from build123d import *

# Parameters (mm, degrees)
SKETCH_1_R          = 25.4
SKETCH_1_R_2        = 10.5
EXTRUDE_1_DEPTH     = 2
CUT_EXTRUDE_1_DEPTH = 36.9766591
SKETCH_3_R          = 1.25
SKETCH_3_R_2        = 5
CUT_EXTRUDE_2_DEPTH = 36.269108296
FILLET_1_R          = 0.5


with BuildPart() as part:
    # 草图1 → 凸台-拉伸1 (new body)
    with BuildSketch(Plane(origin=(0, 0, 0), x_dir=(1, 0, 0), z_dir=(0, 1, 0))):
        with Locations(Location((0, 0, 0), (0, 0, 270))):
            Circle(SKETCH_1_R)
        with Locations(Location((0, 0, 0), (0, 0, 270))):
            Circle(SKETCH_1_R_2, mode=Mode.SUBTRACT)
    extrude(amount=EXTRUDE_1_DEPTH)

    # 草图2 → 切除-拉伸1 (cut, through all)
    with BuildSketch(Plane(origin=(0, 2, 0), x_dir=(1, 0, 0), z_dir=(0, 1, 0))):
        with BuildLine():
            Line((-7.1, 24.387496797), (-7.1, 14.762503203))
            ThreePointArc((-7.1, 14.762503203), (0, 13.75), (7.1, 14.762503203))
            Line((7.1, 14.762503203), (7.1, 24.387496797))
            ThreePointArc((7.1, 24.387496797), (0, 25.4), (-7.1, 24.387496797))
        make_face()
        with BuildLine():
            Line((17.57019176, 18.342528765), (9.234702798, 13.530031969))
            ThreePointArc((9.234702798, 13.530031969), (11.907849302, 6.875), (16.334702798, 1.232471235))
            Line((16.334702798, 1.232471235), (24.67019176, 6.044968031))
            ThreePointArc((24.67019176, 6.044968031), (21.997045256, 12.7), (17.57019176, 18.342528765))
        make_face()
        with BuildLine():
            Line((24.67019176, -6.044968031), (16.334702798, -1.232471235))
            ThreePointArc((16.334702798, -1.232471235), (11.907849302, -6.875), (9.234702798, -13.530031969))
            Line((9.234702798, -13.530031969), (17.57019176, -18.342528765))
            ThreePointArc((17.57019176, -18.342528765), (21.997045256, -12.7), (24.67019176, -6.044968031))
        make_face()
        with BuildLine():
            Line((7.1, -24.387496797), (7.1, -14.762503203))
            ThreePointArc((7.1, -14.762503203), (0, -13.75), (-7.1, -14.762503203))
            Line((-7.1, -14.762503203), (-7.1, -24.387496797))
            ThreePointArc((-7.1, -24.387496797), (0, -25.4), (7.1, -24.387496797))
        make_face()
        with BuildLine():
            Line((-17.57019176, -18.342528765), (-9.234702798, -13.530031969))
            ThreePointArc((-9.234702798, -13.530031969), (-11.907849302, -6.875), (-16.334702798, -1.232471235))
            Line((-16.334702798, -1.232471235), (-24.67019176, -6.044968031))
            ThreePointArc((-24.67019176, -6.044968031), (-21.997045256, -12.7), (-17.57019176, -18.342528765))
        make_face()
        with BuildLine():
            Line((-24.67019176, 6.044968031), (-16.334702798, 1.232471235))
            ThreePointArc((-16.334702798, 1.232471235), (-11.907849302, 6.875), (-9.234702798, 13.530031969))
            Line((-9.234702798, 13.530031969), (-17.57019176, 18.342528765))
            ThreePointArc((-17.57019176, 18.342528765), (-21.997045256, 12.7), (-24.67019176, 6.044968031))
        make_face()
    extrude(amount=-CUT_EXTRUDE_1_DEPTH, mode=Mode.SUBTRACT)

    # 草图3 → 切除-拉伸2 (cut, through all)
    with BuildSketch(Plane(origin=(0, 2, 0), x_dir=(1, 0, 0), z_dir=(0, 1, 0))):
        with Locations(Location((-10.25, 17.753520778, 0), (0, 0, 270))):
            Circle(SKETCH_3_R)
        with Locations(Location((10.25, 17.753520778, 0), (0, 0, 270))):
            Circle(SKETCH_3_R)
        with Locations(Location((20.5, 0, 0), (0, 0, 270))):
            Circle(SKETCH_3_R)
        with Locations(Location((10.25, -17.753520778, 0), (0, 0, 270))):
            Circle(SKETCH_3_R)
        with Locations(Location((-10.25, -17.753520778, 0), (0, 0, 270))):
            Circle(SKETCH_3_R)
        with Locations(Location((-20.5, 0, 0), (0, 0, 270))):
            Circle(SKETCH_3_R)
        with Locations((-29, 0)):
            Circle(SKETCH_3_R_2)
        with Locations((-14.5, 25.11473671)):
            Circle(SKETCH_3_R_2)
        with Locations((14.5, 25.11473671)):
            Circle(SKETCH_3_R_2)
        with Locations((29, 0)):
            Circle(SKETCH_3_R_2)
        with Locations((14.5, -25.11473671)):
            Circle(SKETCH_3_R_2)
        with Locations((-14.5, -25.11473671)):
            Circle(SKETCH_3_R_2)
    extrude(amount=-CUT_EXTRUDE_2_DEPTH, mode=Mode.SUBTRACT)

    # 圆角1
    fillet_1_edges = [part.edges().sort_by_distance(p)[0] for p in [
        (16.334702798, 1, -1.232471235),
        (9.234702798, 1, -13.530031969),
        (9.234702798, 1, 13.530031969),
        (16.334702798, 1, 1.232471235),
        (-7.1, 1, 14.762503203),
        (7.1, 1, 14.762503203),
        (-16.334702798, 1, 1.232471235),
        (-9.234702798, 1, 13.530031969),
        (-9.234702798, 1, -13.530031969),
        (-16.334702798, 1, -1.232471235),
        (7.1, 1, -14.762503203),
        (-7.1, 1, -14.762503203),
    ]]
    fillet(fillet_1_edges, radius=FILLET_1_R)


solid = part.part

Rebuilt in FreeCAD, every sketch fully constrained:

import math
import FreeCAD as App
import Part
import Sketcher
Q = App.Units.Quantity


def edges_at(feature, points):
    """Names of the edges that pass closest to the given points."""
    edges = feature.Shape.Edges
    near = lambda p: min(range(len(edges)), key=lambda i: edges[i].distToShape(Part.Vertex(*p))[0])
    return sorted({f"Edge{near(p) + 1}" for p in points})

doc = App.newDocument("Part")
body = doc.addObject("PartDesign::Body", "Body")

# Sketch on XZ plane
sketch1 = doc.addObject("Sketcher::SketchObject", "Sketch")
body.addObject(sketch1)
sketch1.AttachmentSupport = (doc.XZ_Plane, [""])
sketch1.MapMode = "FlatFace"
sketch1.addGeometry([
    Part.Circle(App.Vector(0, 0, 0), App.Vector(0, 0, 1), 25.4),
    Part.Circle(App.Vector(0, 0, 0), App.Vector(0, 0, 1), 10.5),
], False)
sketch1.addConstraint([
    Sketcher.Constraint("Coincident", 0, 3, -1, 1),
    Sketcher.Constraint("Coincident", 1, 3, -1, 1),
    Sketcher.Constraint("Diameter", 1, Q("21 mm")),
    Sketcher.Constraint("Diameter", 0, Q("50.8 mm")),
])
pad1 = doc.addObject("PartDesign::Pad", "Pad")
body.addObject(pad1)
pad1.Profile = sketch1
pad1.Length = 2
pad1.Reversed = True

# Sketch on XZ plane
sketch2 = doc.addObject("Sketcher::SketchObject", "Sketch001")
body.addObject(sketch2)
sketch2.AttachmentSupport = (doc.XZ_Plane, [""])
sketch2.MapMode = "FlatFace"
sketch2.AttachmentOffset = App.Placement(App.Vector(0, 0, -2), App.Rotation())
sketch2.addGeometry([
    Part.LineSegment(App.Vector(-7.1, -24.387497, 0), App.Vector(-7.1, -14.762503, 0)),  # 0
    Part.ArcOfCircle(Part.Circle(App.Vector(0, -39.15, 0), App.Vector(0, 0, 1), 25.4), math.radians(73.76799), math.radians(106.23201)),  # 1
    Part.LineSegment(App.Vector(7.1, -14.762503, 0), App.Vector(7.1, -24.387497, 0)),  # 2
    Part.ArcOfCircle(Part.Circle(App.Vector(0, 0, 0), App.Vector(0, 0, 1), 25.4), math.radians(-106.23201), math.radians(-73.76799)),  # 3
    Part.LineSegment(App.Vector(17.570192, -18.342529, 0), App.Vector(9.234703, -13.530032, 0)),  # 4
    Part.ArcOfCircle(Part.Circle(App.Vector(33.904895, -19.575, 0), App.Vector(0, 0, 1), 25.4), math.radians(133.76799), math.radians(166.23201)),  # 5
    Part.LineSegment(App.Vector(16.334703, -1.232471, 0), App.Vector(24.670192, -6.044968, 0)),  # 6
    Part.ArcOfCircle(Part.Circle(App.Vector(0, 0, 0), App.Vector(0, 0, 1), 25.4), math.radians(-46.23201), math.radians(-13.76799)),  # 7
    Part.LineSegment(App.Vector(24.670192, 6.044968, 0), App.Vector(16.334703, 1.232471, 0)),  # 8
    Part.ArcOfCircle(Part.Circle(App.Vector(33.904895, 19.575, 0), App.Vector(0, 0, 1), 25.4), math.radians(-166.23201), math.radians(-133.76799)),  # 9
    Part.LineSegment(App.Vector(9.234703, 13.530032, 0), App.Vector(17.570192, 18.342529, 0)),  # 10
    Part.ArcOfCircle(Part.Circle(App.Vector(0, 0, 0), App.Vector(0, 0, 1), 25.4), math.radians(13.76799), math.radians(46.23201)),  # 11
    Part.LineSegment(App.Vector(7.1, 24.387497, 0), App.Vector(7.1, 14.762503, 0)),  # 12
    Part.ArcOfCircle(Part.Circle(App.Vector(0, 39.15, 0), App.Vector(0, 0, 1), 25.4), math.radians(-106.23201), math.radians(-73.76799)),  # 13
    Part.LineSegment(App.Vector(-7.1, 14.762503, 0), App.Vector(-7.1, 24.387497, 0)),  # 14
    Part.ArcOfCircle(Part.Circle(App.Vector(0, 0, 0), App.Vector(0, 0, 1), 25.4), math.radians(73.76799), math.radians(106.23201)),  # 15
    Part.LineSegment(App.Vector(-17.570192, 18.342529, 0), App.Vector(-9.234703, 13.530032, 0)),  # 16
    Part.ArcOfCircle(Part.Circle(App.Vector(-33.904895, 19.575, 0), App.Vector(0, 0, 1), 25.4), math.radians(-46.23201), math.radians(-13.76799)),  # 17
    Part.LineSegment(App.Vector(-16.334703, 1.232471, 0), App.Vector(-24.670192, 6.044968, 0)),  # 18
    Part.ArcOfCircle(Part.Circle(App.Vector(0, 0, 0), App.Vector(0, 0, 1), 25.4), math.radians(133.76799), math.radians(166.23201)),  # 19
    Part.LineSegment(App.Vector(-24.670192, -6.044968, 0), App.Vector(-16.334703, -1.232471, 0)),  # 20
    Part.ArcOfCircle(Part.Circle(App.Vector(-33.904895, -19.575, 0), App.Vector(0, 0, 1), 25.4), math.radians(13.76799), math.radians(46.23201)),  # 21
    Part.LineSegment(App.Vector(-9.234703, -13.530032, 0), App.Vector(-17.570192, -18.342529, 0)),  # 22
    Part.ArcOfCircle(Part.Circle(App.Vector(0, 0, 0), App.Vector(0, 0, 1), 25.4), math.radians(-166.23201), math.radians(-133.76799)),  # 23
], False)
sketch2.addConstraint([
    Sketcher.Constraint("Coincident", 0, 2, 1, 2),
    Sketcher.Constraint("Coincident", 1, 1, 2, 1),
    Sketcher.Constraint("Coincident", 2, 2, 3, 2),
    Sketcher.Constraint("Coincident", 3, 1, 0, 1),
    Sketcher.Constraint("Coincident", 4, 2, 5, 2),
    Sketcher.Constraint("Coincident", 5, 1, 6, 1),
    Sketcher.Constraint("Coincident", 6, 2, 7, 2),
    Sketcher.Constraint("Coincident", 7, 1, 4, 1),
    Sketcher.Constraint("Coincident", 8, 2, 9, 2),
    Sketcher.Constraint("Coincident", 9, 1, 10, 1),
    Sketcher.Constraint("Coincident", 10, 2, 11, 2),
    Sketcher.Constraint("Coincident", 11, 1, 8, 1),
    Sketcher.Constraint("Coincident", 12, 2, 13, 2),
    Sketcher.Constraint("Coincident", 13, 1, 14, 1),
    Sketcher.Constraint("Coincident", 14, 2, 15, 2),
    Sketcher.Constraint("Coincident", 15, 1, 12, 1),
    Sketcher.Constraint("Coincident", 16, 2, 17, 2),
    Sketcher.Constraint("Coincident", 17, 1, 18, 1),
    Sketcher.Constraint("Coincident", 18, 2, 19, 2),
    Sketcher.Constraint("Coincident", 19, 1, 16, 1),
    Sketcher.Constraint("Coincident", 20, 2, 21, 2),
    Sketcher.Constraint("Coincident", 21, 1, 22, 1),
    Sketcher.Constraint("Coincident", 22, 2, 23, 2),
    Sketcher.Constraint("Coincident", 23, 1, 20, 1),
    Sketcher.Constraint("Vertical", 0),
    Sketcher.Constraint("Vertical", 2),
    Sketcher.Constraint("Vertical", 12),
    Sketcher.Constraint("Vertical", 14),
    Sketcher.Constraint("Coincident", 3, 3, -1, 1),
    Sketcher.Constraint("Coincident", 7, 3, -1, 1),
    Sketcher.Constraint("Coincident", 11, 3, -1, 1),
    Sketcher.Constraint("Coincident", 15, 3, -1, 1),
    Sketcher.Constraint("Coincident", 19, 3, -1, 1),
    Sketcher.Constraint("Coincident", 23, 3, -1, 1),
    Sketcher.Constraint("Equal", 1, 3),
    Sketcher.Constraint("Equal", 3, 5),
    Sketcher.Constraint("Equal", 5, 7),
    Sketcher.Constraint("Equal", 7, 9),
    Sketcher.Constraint("Equal", 9, 11),
    Sketcher.Constraint("Equal", 11, 13),
    Sketcher.Constraint("Equal", 13, 15),
    Sketcher.Constraint("Equal", 15, 17),
    Sketcher.Constraint("Equal", 17, 19),
    Sketcher.Constraint("Equal", 19, 21),
    Sketcher.Constraint("Equal", 21, 23),
    Sketcher.Constraint("Symmetric", 1, 3, 13, 3, -1, 1),
    Sketcher.Constraint("Symmetric", 5, 3, 17, 3, -1, 1),
    Sketcher.Constraint("Symmetric", 9, 3, 21, 3, -1, 1),
    Sketcher.Constraint("Symmetric", 9, 3, 17, 3, -2),
    Sketcher.Constraint("Symmetric", 0, 2, 1, 1, -2),
    Sketcher.Constraint("Parallel", 4, 6),
    Sketcher.Constraint("Parallel", 8, 10),
    Sketcher.Constraint("Parallel", 6, 16),
    Sketcher.Constraint("Parallel", 16, 18),
    Sketcher.Constraint("Parallel", 10, 20),
    Sketcher.Constraint("Parallel", 20, 22),
    Sketcher.Constraint("Horizontal", 12, 2, 13, 1),
    Sketcher.Constraint("Horizontal", 9, 1, 16, 2),
    Sketcher.Constraint("Horizontal", 8, 2, 17, 1),
    Sketcher.Constraint("Horizontal", 11, 1, 18, 2),
    Sketcher.Constraint("Horizontal", 5, 1, 20, 2),
    Sketcher.Constraint("Horizontal", 4, 2, 21, 1),
    Sketcher.Constraint("Vertical", 5, 1, 8, 2),
    Sketcher.Constraint("Vertical", 4, 2, 9, 1),
    Sketcher.Constraint("Vertical", 2, 2, 12, 2),
    Sketcher.Constraint("Equal", 4, 6),
    Sketcher.Constraint("Radius", 1, Q("25.4 mm")),
    Sketcher.Constraint("Angle", 4, Q("150 deg")),
    Sketcher.Constraint("DistanceX", 0, 2, -1, 1, Q("7.1 mm")),
    Sketcher.Constraint("DistanceX", 4, 2, 5, 1, Q("7.1 mm")),
    Sketcher.Constraint("DistanceY", 1, 3, -1, 1, Q("39.15 mm")),
    Sketcher.Constraint("DistanceY", 5, 3, 9, 3, Q("39.15 mm")),
    Sketcher.Constraint("DistanceY", 4, 2, -1, 1, Q("13.530032 mm")),
])
pocket1 = doc.addObject("PartDesign::Pocket", "Pocket")
body.addObject(pocket1)
pocket1.Profile = sketch2
pocket1.Type = "ThroughAll"
pocket1.Reversed = True

# Sketch on XZ plane
sketch3 = doc.addObject("Sketcher::SketchObject", "Sketch002")
body.addObject(sketch3)
sketch3.AttachmentSupport = (doc.XZ_Plane, [""])
sketch3.MapMode = "FlatFace"
sketch3.AttachmentOffset = App.Placement(App.Vector(0, 0, -2), App.Rotation())
sketch3.addGeometry([
    Part.Circle(App.Vector(-10.25, -17.753521, 0), App.Vector(0, 0, 1), 1.25),  # 0
    Part.Circle(App.Vector(10.25, -17.753521, 0), App.Vector(0, 0, 1), 1.25),  # 1
    Part.Circle(App.Vector(20.5, 0, 0), App.Vector(0, 0, 1), 1.25),  # 2
    Part.Circle(App.Vector(10.25, 17.753521, 0), App.Vector(0, 0, 1), 1.25),  # 3
    Part.Circle(App.Vector(-10.25, 17.753521, 0), App.Vector(0, 0, 1), 1.25),  # 4
    Part.Circle(App.Vector(-20.5, 0, 0), App.Vector(0, 0, 1), 1.25),  # 5
    Part.Circle(App.Vector(-29, 0, 0), App.Vector(0, 0, 1), 5),  # 6
    Part.Circle(App.Vector(-14.5, -25.114737, 0), App.Vector(0, 0, 1), 5),  # 7
    Part.Circle(App.Vector(14.5, -25.114737, 0), App.Vector(0, 0, 1), 5),  # 8
    Part.Circle(App.Vector(29, 0, 0), App.Vector(0, 0, 1), 5),  # 9
    Part.Circle(App.Vector(14.5, 25.114737, 0), App.Vector(0, 0, 1), 5),  # 10
    Part.Circle(App.Vector(-14.5, 25.114737, 0), App.Vector(0, 0, 1), 5),  # 11
], False)
sketch3.addConstraint([
    Sketcher.Constraint("Equal", 0, 1),
    Sketcher.Constraint("Equal", 1, 2),
    Sketcher.Constraint("Equal", 2, 3),
    Sketcher.Constraint("Equal", 3, 4),
    Sketcher.Constraint("Equal", 4, 5),
    Sketcher.Constraint("Equal", 6, 7),
    Sketcher.Constraint("Equal", 7, 8),
    Sketcher.Constraint("Equal", 8, 9),
    Sketcher.Constraint("Equal", 9, 10),
    Sketcher.Constraint("Equal", 10, 11),
    Sketcher.Constraint("Symmetric", 0, 3, 3, 3, -1, 1),
    Sketcher.Constraint("Symmetric", 1, 3, 4, 3, -1, 1),
    Sketcher.Constraint("Symmetric", 2, 3, 5, 3, -1, 1),
    Sketcher.Constraint("Symmetric", 6, 3, 9, 3, -1, 1),
    Sketcher.Constraint("Symmetric", 7, 3, 10, 3, -1, 1),
    Sketcher.Constraint("Symmetric", 8, 3, 11, 3, -1, 1),
    Sketcher.Constraint("Symmetric", 0, 3, 1, 3, -2),
    Sketcher.Constraint("Symmetric", 7, 3, 8, 3, -2),
    Sketcher.Constraint("PointOnObject", 2, 3, -1),
    Sketcher.Constraint("PointOnObject", 6, 3, -1),
    Sketcher.Constraint("Diameter", 6, Q("10 mm")),
    Sketcher.Constraint("Diameter", 0, Q("2.5 mm")),
    Sketcher.Constraint("DistanceX", 6, 3, -1, 1, Q("29 mm")),
    Sketcher.Constraint("DistanceX", 5, 3, 2, 3, Q("41 mm")),
    Sketcher.Constraint("DistanceX", 5, 3, 7, 3, Q("6 mm")),
    Sketcher.Constraint("DistanceX", 0, 3, 1, 3, Q("20.5 mm")),
    Sketcher.Constraint("DistanceY", 0, 3, -1, 1, Q("17.753521 mm")),
    Sketcher.Constraint("DistanceY", 7, 3, -1, 1, Q("25.114737 mm")),
])
pocket2 = doc.addObject("PartDesign::Pocket", "Pocket001")
body.addObject(pocket2)
pocket2.Profile = sketch3
pocket2.Type = "ThroughAll"
pocket2.Reversed = True
doc.recompute()

fillet = doc.addObject("PartDesign::Fillet", "Fillet")
body.addObject(fillet)
fillet.Base = (pocket2, edges_at(pocket2, [
    (16.335, 1, -1.232),
    (9.235, 1, -13.53),
    (9.235, 1, 13.53),
    (16.335, 1, 1.232),
    (-7.1, 1, 14.763),
    (7.1, 1, 14.763),
    (-16.335, 1, 1.232),
    (-9.235, 1, 13.53),
    (-9.235, 1, -13.53),
    (-16.335, 1, -1.232),
    (7.1, 1, -14.763),
    (-7.1, 1, -14.763),
]))
fillet.Radius = 0.5

doc.recompute()
